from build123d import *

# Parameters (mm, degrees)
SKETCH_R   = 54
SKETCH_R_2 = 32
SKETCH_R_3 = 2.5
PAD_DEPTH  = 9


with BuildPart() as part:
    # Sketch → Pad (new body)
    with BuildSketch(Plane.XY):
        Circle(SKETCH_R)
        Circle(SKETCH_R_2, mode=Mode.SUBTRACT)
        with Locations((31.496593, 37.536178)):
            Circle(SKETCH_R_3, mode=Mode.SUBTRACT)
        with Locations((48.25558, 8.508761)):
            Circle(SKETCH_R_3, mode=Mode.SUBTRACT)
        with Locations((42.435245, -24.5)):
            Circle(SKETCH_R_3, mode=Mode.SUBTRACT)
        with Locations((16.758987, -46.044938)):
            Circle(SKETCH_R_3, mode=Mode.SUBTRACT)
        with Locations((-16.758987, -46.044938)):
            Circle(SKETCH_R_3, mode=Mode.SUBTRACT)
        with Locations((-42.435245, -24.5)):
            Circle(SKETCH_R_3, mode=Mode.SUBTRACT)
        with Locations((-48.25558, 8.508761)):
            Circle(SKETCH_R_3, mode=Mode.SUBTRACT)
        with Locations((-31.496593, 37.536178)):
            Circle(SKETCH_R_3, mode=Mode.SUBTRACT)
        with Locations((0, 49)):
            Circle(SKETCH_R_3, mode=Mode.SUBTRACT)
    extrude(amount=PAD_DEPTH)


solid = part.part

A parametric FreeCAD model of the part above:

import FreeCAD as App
import Part
import Sketcher

doc = App.newDocument("Part")
params = doc.addObject("Spreadsheet::Sheet", "Params")
for row, (alias, value) in enumerate([
    ("sketch1_diameter", "108 mm"),
    ("sketch1_diameter2", "5 mm"),
    ("sketch1_diameter3", "64 mm"),
    ("pad1_length", "9 mm"),
], start=1):
    params.set(f"A{row}", alias)
    params.set(f"B{row}", "=" + value)
    params.setAlias(f"B{row}", alias)

body = doc.addObject("PartDesign::Body", "Body")

# Sketch on XY plane
sketch1 = doc.addObject("Sketcher::SketchObject", "Sketch")
body.addObject(sketch1)
sketch1.AttachmentSupport = (doc.XY_Plane, [""])
sketch1.MapMode = "FlatFace"
sketch1.addGeometry([
    Part.Circle(App.Vector(0, 0, 0), App.Vector(0, 0, 1), 54),  # 0
    Part.Circle(App.Vector(-42.4, -24.5, 0), App.Vector(0, 0, 1), 2.5),  # 1
    Part.Circle(App.Vector(-16.8, -46, 0), App.Vector(0, 0, 1), 2.5),  # 2
    Part.Circle(App.Vector(16.8, -46, 0), App.Vector(0, 0, 1), 2.5),  # 3
    Part.Circle(App.Vector(42.4, -24.5, 0), App.Vector(0, 0, 1), 2.5),  # 4
    Part.Circle(App.Vector(0, 0, 0), App.Vector(0, 0, 1), 32),  # 5
    Part.Circle(App.Vector(-48.3, 8.5, 0), App.Vector(0, 0, 1), 2.5),  # 6
    Part.Circle(App.Vector(-31.5, 37.5, 0), App.Vector(0, 0, 1), 2.5),  # 7
    Part.Circle(App.Vector(48.3, 8.5, 0), App.Vector(0, 0, 1), 2.5),  # 8
    Part.Circle(App.Vector(0, 49, 0), App.Vector(0, 0, 1), 2.5),  # 9
    Part.Circle(App.Vector(31.5, 37.5, 0), App.Vector(0, 0, 1), 2.5),  # 10
], False)
sketch1.addConstraint([
    Sketcher.Constraint("Coincident", 0, 3, -1, 1),
    Sketcher.Constraint("Coincident", 5, 3, -1, 1),
    Sketcher.Constraint("Equal", 1, 2),
    Sketcher.Constraint("Equal", 2, 3),
    Sketcher.Constraint("Equal", 3, 4),
    Sketcher.Constraint("Equal", 4, 6),
    Sketcher.Constraint("Equal", 6, 7),
    Sketcher.Constraint("Equal", 7, 8),
    Sketcher.Constraint("Equal", 8, 9),
    Sketcher.Constraint("Equal", 9, 10),
    Sketcher.Constraint("Symmetric", 2, 3, 3, 3, -2),
    Sketcher.Constraint("Symmetric", 1, 3, 4, 3, -2),
    Sketcher.Constraint("Symmetric", 6, 3, 8, 3, -2),
    Sketcher.Constraint("Symmetric", 7, 3, 10, 3, -2),
    Sketcher.Constraint("PointOnObject", 9, 3, -2),
    Sketcher.Constraint("Diameter", 0, 108.0),
    Sketcher.Constraint("Diameter", 1, 5.0),
    Sketcher.Constraint("Diameter", 5, 64.0),
    Sketcher.Constraint("DistanceY", -1, 1, 9, 3, 49.0),
    Sketcher.Constraint("DistanceY", 1, 3, -1, 1, 24.5),
    Sketcher.Constraint("DistanceY", 2, 3, 6, 3, 54.553699),
    Sketcher.Constraint("DistanceY", 2, 3, -1, 1, 46.044938),
    Sketcher.Constraint("DistanceX", 6, 3, -1, 1, 48.25558),
    Sketcher.Constraint("DistanceX", 1, 3, 2, 3, 25.676258),
    Sketcher.Constraint("DistanceX", 1, 3, 4, 3, 84.87049),
    Sketcher.Constraint("DistanceX", 7, 3, -1, 1, 31.496593),
    Sketcher.Constraint("DistanceY", -1, 1, 7, 3, 37.536178),
])
sketch1.setExpression("Constraints[15]", "Params.sketch1_diameter")
sketch1.setExpression("Constraints[16]", "Params.sketch1_diameter2")
sketch1.setExpression("Constraints[17]", "Params.sketch1_diameter3")
pad1 = doc.addObject("PartDesign::Pad", "Pad")
body.addObject(pad1)
pad1.Profile = sketch1
pad1.setExpression("Length", "Params.pad1_length")

doc.recompute()
